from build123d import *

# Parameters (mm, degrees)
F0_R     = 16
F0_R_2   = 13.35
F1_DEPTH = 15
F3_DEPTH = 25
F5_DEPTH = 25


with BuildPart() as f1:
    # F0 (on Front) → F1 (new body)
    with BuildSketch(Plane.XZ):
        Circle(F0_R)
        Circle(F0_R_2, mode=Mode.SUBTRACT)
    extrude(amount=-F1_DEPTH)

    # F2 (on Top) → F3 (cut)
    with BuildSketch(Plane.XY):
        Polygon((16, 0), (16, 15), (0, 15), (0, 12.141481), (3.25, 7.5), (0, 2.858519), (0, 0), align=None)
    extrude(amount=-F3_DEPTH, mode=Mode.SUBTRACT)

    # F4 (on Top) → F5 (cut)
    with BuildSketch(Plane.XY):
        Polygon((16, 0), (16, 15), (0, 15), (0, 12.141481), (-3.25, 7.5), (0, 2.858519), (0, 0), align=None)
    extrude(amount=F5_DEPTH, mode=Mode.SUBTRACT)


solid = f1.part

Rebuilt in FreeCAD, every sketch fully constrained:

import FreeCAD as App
import Part
import Sketcher
Q = App.Units.Quantity


def add_polygon(sketch, points):
    """Adds a closed chain of lines whose ends are joined by coincident constraints."""
    first, n = sketch.GeometryCount, len(points)
    for a, b in zip(points, points[1:] + points[:1]):
        sketch.addGeometry(Part.LineSegment(App.Vector(*a, 0), App.Vector(*b, 0)), False)
    for i in range(n):
        sketch.addConstraint(Sketcher.Constraint("Coincident", first + i, 2, first + (i + 1) % n, 1))

doc = App.newDocument("Part")
params = doc.addObject("Spreadsheet::Sheet", "Params")
for row, (alias, value) in enumerate([
    ("sketch1_diameter", "32 mm"),
    ("sketch1_diameter2", "26.7 mm"),
    ("pad1_length", "15 mm"),
    ("sketch2_width", "16 mm"),
    ("sketch2_height", "15 mm"),
    ("pocket1_length", "25 mm"),
    ("sketch3_width", "16 mm"),
    ("sketch3_height", "15 mm"),
    ("pocket2_length", "25 mm"),
], start=1):
    params.set(f"A{row}", alias)
    params.set(f"B{row}", "=" + value)
    params.setAlias(f"B{row}", alias)

body = doc.addObject("PartDesign::Body", "Body")

# Sketch on XZ plane
sketch1 = body.newObject("Sketcher::SketchObject", "Sketch")
sketch1.AttachmentSupport = (doc.getObject("XZ_Plane"), [""])
sketch1.MapMode = "FlatFace"
sketch1.addGeometry([
    Part.Circle(App.Vector(0, 0, 0), App.Vector(0, 0, 1), 16),
    Part.Circle(App.Vector(0, 0, 0), App.Vector(0, 0, 1), 13),
], False)
sketch1.addConstraint([
    Sketcher.Constraint("Coincident", 0, 3, -1, 1),
    Sketcher.Constraint("Coincident", 1, 3, -1, 1),
    Sketcher.Constraint("Diameter", 0, Q("32 mm")),
    Sketcher.Constraint("Diameter", 1, Q("26.7 mm")),
])
sketch1.setExpression("Constraints[2]", "Params.sketch1_diameter")
sketch1.setExpression("Constraints[3]", "Params.sketch1_diameter2")
pad1 = body.newObject("PartDesign::Pad", "Pad")
pad1.Profile = sketch1
pad1.setExpression("Length", "Params.pad1_length")
pad1.Reversed = True

# Sketch on XY plane
sketch2 = body.newObject("Sketcher::SketchObject", "Sketch001")
sketch2.AttachmentSupport = (doc.getObject("XY_Plane"), [""])
sketch2.MapMode = "FlatFace"
add_polygon(sketch2, [(16, 0), (16, 15), (0, 15), (0, 12.1), (3.2, 7.5), (0, 2.9), (0, 0)])  # lines 0-6
sketch2.addConstraint([
    Sketcher.Constraint("Vertical", 0),
    Sketcher.Constraint("Horizontal", 1),
    Sketcher.Constraint("Vertical", 2),
    Sketcher.Constraint("Vertical", 5),
    Sketcher.Constraint("Horizontal", 6),
    Sketcher.Constraint("Coincident", 5, 2, -1, 1),
    Sketcher.Constraint("PointOnObject", 1, 2, -2),
    Sketcher.Constraint("Equal", 2, 5),
    Sketcher.Constraint("Equal", 3, 4),
    Sketcher.Constraint("DistanceX", 1, 2, 1, 1, Q("16 mm")),
    Sketcher.Constraint("DistanceY", 0, 1, 0, 2, Q("15 mm")),
    Sketcher.Constraint("Angle", 3, Q("-55 deg")),
    Sketcher.Constraint("DistanceX", -1, 1, 3, 2, Q("3.25 mm")),
])
sketch2.setExpression("Constraints[16]", "Params.sketch2_width")
sketch2.setExpression("Constraints[17]", "Params.sketch2_height")
pocket1 = body.newObject("PartDesign::Pocket", "Pocket")
pocket1.Profile = sketch2
pocket1.setExpression("Length", "Params.pocket1_length")

# Sketch on XY plane
sketch3 = body.newObject("Sketcher::SketchObject", "Sketch002")
sketch3.AttachmentSupport = (doc.getObject("XY_Plane"), [""])
sketch3.MapMode = "FlatFace"
add_polygon(sketch3, [(16, 0), (16, 15), (0, 15), (0, 12.1), (-3.2, 7.5), (0, 2.9), (0, 0)])  # lines 0-6
sketch3.addConstraint([
    Sketcher.Constraint("Vertical", 0),
    Sketcher.Constraint("Horizontal", 1),
    Sketcher.Constraint("Vertical", 2),
    Sketcher.Constraint("Vertical", 5),
    Sketcher.Constraint("Horizontal", 6),
    Sketcher.Constraint("Coincident", 5, 2, -1, 1),
    Sketcher.Constraint("PointOnObject", 1, 2, -2),
    Sketcher.Constraint("Equal", 2, 5),
    Sketcher.Constraint("Equal", 3, 4),
    Sketcher.Constraint("DistanceX", 1, 2, 1, 1, Q("16 mm")),
    Sketcher.Constraint("DistanceY", 0, 1, 0, 2, Q("15 mm")),
    Sketcher.Constraint("Angle", 3, Q("-125 deg")),
    Sketcher.Constraint("DistanceX", 3, 2, -1, 1, Q("3.25 mm")),
])
sketch3.setExpression("Constraints[16]", "Params.sketch3_width")
sketch3.setExpression("Constraints[17]", "Params.sketch3_height")
pocket2 = body.newObject("PartDesign::Pocket", "Pocket001")
pocket2.Profile = sketch3
pocket2.setExpression("Length", "Params.pocket2_length")
pocket2.Reversed = True

doc.recompute()
